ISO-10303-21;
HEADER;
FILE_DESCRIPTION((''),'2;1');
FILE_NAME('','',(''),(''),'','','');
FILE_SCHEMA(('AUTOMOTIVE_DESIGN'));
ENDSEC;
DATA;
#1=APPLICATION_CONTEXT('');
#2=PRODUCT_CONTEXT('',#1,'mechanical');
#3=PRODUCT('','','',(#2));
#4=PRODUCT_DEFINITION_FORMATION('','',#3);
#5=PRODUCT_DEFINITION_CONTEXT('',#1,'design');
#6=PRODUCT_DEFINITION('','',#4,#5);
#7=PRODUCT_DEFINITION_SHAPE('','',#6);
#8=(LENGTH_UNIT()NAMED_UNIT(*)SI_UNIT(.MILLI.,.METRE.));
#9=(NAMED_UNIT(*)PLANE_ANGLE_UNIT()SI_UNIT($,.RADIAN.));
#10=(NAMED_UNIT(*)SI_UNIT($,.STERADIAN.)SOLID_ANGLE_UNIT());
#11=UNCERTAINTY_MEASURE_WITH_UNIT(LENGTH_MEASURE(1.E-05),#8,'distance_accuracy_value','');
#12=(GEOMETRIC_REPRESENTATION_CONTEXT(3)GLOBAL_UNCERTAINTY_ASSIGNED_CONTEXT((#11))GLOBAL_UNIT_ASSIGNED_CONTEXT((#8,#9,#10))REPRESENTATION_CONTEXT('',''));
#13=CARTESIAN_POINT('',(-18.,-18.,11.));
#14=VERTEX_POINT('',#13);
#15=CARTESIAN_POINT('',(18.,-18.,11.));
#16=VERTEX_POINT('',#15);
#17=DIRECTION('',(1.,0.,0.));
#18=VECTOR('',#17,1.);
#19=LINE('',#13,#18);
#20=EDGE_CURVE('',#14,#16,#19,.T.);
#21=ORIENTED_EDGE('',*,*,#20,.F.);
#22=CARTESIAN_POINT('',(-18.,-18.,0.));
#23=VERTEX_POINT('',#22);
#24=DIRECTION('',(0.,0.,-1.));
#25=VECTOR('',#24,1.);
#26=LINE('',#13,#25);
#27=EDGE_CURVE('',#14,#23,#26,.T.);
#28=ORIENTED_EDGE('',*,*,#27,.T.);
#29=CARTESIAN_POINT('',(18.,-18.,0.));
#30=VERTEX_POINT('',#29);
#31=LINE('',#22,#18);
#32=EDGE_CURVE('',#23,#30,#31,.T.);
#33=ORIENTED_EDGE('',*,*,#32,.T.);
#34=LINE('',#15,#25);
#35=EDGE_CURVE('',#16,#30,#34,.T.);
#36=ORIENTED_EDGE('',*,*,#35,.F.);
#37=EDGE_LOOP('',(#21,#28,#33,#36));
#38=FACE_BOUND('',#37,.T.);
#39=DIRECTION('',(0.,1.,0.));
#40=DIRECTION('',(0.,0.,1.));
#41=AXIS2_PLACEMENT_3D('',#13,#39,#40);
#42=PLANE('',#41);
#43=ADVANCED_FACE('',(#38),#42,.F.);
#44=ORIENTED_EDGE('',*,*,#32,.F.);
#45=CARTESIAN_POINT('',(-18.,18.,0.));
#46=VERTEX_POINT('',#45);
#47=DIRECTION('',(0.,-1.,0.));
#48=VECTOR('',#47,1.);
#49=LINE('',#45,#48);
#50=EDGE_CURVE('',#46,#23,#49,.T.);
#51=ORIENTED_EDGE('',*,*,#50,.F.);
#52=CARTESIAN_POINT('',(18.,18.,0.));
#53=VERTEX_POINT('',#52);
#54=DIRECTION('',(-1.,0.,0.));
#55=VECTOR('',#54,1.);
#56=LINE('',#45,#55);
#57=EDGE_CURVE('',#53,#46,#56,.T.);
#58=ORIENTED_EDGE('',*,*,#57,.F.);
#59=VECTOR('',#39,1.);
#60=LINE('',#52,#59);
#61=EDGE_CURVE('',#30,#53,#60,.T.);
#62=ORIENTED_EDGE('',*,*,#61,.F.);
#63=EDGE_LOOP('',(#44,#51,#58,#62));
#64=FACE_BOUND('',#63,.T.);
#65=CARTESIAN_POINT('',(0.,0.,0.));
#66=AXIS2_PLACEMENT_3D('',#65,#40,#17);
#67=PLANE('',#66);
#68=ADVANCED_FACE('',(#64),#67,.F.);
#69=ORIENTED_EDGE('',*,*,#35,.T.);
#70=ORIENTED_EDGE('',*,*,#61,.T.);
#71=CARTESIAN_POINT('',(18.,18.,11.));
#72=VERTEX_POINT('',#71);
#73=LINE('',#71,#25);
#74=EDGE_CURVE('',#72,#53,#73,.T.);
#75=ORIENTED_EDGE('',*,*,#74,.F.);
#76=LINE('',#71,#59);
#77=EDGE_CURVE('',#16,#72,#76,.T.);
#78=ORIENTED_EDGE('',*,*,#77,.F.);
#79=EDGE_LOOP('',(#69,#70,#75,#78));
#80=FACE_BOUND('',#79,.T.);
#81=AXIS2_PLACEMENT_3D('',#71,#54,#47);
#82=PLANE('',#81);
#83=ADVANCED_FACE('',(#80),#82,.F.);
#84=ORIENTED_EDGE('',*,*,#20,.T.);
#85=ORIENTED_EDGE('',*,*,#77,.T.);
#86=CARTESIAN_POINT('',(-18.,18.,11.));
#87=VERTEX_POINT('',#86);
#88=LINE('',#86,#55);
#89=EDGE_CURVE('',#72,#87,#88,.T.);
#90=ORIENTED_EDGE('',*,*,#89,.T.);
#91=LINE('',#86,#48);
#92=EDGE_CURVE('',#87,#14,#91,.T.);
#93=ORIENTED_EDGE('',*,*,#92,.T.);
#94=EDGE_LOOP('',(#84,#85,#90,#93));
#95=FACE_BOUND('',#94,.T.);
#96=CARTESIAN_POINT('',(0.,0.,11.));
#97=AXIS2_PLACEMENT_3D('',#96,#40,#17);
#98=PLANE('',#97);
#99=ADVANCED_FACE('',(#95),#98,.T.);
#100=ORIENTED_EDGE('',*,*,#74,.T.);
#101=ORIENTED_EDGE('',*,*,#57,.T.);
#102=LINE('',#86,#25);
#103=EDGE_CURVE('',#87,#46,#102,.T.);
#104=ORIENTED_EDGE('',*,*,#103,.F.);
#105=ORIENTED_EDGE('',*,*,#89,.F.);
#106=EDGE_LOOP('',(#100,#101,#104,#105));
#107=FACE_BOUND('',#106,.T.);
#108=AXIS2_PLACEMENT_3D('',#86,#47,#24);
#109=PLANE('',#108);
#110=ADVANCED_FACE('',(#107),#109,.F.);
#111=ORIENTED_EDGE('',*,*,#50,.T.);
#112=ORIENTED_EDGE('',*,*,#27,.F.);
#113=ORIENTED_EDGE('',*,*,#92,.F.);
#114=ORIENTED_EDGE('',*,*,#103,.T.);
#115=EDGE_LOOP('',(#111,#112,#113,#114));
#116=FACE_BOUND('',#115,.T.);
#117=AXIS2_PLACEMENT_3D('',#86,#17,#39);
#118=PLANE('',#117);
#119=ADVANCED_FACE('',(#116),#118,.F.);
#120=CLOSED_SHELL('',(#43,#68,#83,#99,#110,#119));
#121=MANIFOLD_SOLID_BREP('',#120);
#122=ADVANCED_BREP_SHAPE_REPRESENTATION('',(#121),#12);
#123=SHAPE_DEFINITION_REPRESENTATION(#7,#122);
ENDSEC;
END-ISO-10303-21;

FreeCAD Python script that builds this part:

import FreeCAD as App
import Part
import Sketcher
from FreeCAD import Vector
Q = App.Units.Quantity


def add_polygon(sketch, points):
    """Adds a closed chain of lines whose ends are joined by coincident constraints."""
    first, n = sketch.GeometryCount, len(points)
    for a, b in zip(points, points[1:] + points[:1]):
        sketch.addGeometry(Part.LineSegment(App.Vector(*a, 0), App.Vector(*b, 0)), False)
    for i in range(n):
        sketch.addConstraint(Sketcher.Constraint("Coincident", first + i, 2, first + (i + 1) % n, 1))

doc = App.newDocument("Part")
body = doc.addObject("PartDesign::Body", "Body")

# Sketch on XY plane
sketch1 = body.newObject("Sketcher::SketchObject", "Sketch")
sketch1.AttachmentSupport = (doc.getObject("XY_Plane"), [""])
sketch1.MapMode = "FlatFace"
add_polygon(sketch1, [(-18, 18), (-18, -18), (18, -18), (18, 18)])  # lines 0-3
sketch1.addConstraint([
    Sketcher.Constraint("Vertical", 0),
    Sketcher.Constraint("Horizontal", 1),
    Sketcher.Constraint("Vertical", 2),
    Sketcher.Constraint("Horizontal", 3),
    Sketcher.Constraint("Symmetric", 0, 2, 2, 2, -1, 1),
    Sketcher.Constraint("Equal", 3, 0),
    Sketcher.Constraint("DistanceX", 1, 1, 1, 2, Q("36 mm")),
])
pad1 = body.newObject("PartDesign::Pad", "Pad")
pad1.Profile = sketch1
pad1.Length = 11

doc.recompute()
